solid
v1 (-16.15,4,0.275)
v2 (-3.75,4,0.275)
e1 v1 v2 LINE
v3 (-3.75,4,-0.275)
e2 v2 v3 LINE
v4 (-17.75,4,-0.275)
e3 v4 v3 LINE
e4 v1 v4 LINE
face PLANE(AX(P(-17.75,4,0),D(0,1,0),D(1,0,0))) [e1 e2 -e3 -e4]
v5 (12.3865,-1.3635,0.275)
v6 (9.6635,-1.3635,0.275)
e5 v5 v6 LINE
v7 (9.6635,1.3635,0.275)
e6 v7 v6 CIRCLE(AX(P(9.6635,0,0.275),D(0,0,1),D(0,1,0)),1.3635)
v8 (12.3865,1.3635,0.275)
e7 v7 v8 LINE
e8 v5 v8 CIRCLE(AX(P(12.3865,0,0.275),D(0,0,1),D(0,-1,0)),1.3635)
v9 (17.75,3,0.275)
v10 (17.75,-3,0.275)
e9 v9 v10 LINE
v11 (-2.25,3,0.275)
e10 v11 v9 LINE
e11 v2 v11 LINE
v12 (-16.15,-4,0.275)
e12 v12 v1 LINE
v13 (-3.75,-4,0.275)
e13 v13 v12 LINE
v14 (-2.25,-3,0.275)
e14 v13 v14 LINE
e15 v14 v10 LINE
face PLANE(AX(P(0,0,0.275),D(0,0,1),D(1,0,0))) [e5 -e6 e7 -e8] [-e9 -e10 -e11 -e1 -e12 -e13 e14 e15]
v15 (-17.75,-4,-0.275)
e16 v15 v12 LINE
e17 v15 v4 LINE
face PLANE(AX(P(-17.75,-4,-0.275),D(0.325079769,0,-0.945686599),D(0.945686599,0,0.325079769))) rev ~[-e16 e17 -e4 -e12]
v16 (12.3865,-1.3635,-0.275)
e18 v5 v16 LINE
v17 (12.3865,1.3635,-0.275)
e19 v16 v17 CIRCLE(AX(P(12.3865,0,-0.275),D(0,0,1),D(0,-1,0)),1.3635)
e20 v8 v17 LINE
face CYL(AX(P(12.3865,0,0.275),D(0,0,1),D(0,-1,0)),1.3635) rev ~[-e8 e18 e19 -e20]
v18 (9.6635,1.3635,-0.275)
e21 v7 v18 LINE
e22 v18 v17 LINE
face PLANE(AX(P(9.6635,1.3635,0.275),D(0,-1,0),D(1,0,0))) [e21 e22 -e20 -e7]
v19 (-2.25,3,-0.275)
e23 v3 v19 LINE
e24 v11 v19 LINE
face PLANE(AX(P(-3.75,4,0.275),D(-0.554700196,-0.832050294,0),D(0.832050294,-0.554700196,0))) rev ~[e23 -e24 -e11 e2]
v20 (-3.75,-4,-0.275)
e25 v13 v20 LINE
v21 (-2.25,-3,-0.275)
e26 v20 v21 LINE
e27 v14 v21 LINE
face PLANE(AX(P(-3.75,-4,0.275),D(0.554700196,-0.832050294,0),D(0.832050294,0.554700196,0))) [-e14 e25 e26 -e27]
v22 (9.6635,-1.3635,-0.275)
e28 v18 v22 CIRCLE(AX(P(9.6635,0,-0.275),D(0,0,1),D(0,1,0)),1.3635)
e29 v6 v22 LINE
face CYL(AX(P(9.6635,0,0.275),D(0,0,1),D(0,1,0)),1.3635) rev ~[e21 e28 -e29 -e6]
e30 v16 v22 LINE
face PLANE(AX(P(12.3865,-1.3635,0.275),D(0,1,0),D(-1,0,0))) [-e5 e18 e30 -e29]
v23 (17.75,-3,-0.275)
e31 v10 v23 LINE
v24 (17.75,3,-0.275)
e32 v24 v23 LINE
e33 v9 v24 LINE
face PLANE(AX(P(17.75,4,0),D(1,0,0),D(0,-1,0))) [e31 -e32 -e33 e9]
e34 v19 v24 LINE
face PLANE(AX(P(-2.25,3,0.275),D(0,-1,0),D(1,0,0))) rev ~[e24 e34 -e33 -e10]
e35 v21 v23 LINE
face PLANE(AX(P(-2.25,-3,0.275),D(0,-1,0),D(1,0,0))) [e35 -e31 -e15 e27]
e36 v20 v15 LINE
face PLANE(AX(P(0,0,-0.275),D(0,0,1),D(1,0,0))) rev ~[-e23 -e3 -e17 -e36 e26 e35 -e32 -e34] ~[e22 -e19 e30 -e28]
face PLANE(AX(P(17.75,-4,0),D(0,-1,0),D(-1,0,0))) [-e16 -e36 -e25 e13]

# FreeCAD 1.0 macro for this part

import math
import FreeCAD as App
import Part
import Sketcher
from FreeCAD import Vector
Q = App.Units.Quantity


def add_polygon(sketch, points):
    """Adds a closed chain of lines whose ends are joined by coincident constraints."""
    first, n = sketch.GeometryCount, len(points)
    for a, b in zip(points, points[1:] + points[:1]):
        sketch.addGeometry(Part.LineSegment(App.Vector(*a, 0), App.Vector(*b, 0)), False)
    for i in range(n):
        sketch.addConstraint(Sketcher.Constraint("Coincident", first + i, 2, first + (i + 1) % n, 1))

doc = App.newDocument("Part")
body = doc.addObject("PartDesign::Body", "Body")

# Sketch on XY plane
sketch1 = body.newObject("Sketcher::SketchObject", "Sketch")
sketch1.AttachmentSupport = (doc.getObject("XY_Plane"), [""])
sketch1.MapMode = "FlatFace"
add_polygon(sketch1, [(17.75, 4), (-17.75, 4), (-17.75, -4), (17.75, -4)])  # lines 0-3
sketch1.addConstraint(Sketcher.Constraint("Horizontal", 0))
sketch1.addConstraint(Sketcher.Constraint("Vertical", 1))
sketch1.addConstraint(Sketcher.Constraint("Horizontal", 2))
sketch1.addConstraint(Sketcher.Constraint("Vertical", 3))
sketch1.addConstraint(Sketcher.Constraint("Symmetric", 0, 2, 2, 2, -1, 1))
sketch1.addConstraint(Sketcher.Constraint("DistanceY", 1, 2, 1, 1, Q("8 mm")))
sketch1.addConstraint(Sketcher.Constraint("DistanceX", 0, 2, 0, 1, Q("35.5 mm")))
pad1 = body.newObject("PartDesign::Pad", "Pad")
pad1.Profile = sketch1
pad1.Length = 0.55
pad1.Midplane = True

# Sketch on XY plane
sketch2 = body.newObject("Sketcher::SketchObject", "Sketch001")
sketch2.AttachmentSupport = (doc.getObject("XY_Plane"), [""])
sketch2.MapMode = "FlatFace"
sketch2.AttachmentOffset = App.Placement(Vector(0, 0, 0.275), App.Rotation())
sketch2.addGeometry(Part.LineSegment(Vector(12.3865, 1.3635, 0), Vector(9.6635, 1.3635, 0)), False)
sketch2.addGeometry(Part.ArcOfCircle(Part.Circle(Vector(9.6635, 0, 0), Vector(0, 0, 1), 1.3635), math.radians(90), math.radians(270)), False)
sketch2.addGeometry(Part.LineSegment(Vector(9.6635, -1.3635, 0), Vector(12.3865, -1.3635, 0)), False)
sketch2.addGeometry(Part.ArcOfCircle(Part.Circle(Vector(12.3865, 0, 0), Vector(0, 0, 1), 1.3635), math.radians(-90), math.radians(90)), False)
sketch2.addConstraint(Sketcher.Constraint("Tangent", 0, 2, 1, 1))
sketch2.addConstraint(Sketcher.Constraint("Tangent", 1, 2, 2, 1))
sketch2.addConstraint(Sketcher.Constraint("Tangent", 2, 2, 3, 1))
sketch2.addConstraint(Sketcher.Constraint("Tangent", 3, 2, 0, 1))
sketch2.addConstraint(Sketcher.Constraint("Horizontal", 0))
sketch2.addConstraint(Sketcher.Constraint("Horizontal", 2))
sketch2.addConstraint(Sketcher.Constraint("PointOnObject", 1, 3, -1))
sketch2.addConstraint(Sketcher.Constraint("Radius", 1, Q("1.3635 mm")))
sketch2.addConstraint(Sketcher.Constraint("DistanceX", 0, 2, 0, 1, Q("2.723 mm")))
sketch2.addConstraint(Sketcher.Constraint("DistanceX", -1, 1, 1, 3, Q("9.6635 mm")))
pocket1 = body.newObject("PartDesign::Pocket", "Pocket")
pocket1.Profile = sketch2
pocket1.Length = 0.55

# Sketch on XY plane
sketch3 = body.newObject("Sketcher::SketchObject", "Sketch002")
sketch3.AttachmentSupport = (doc.getObject("XY_Plane"), [""])
sketch3.MapMode = "FlatFace"
sketch3.AttachmentOffset = App.Placement(Vector(0, 0, 0.275), App.Rotation())
add_polygon(sketch3, [(17.75, 4), (-3.75, 4), (-2.25, 3), (17.75, 3)])  # lines 0-3
add_polygon(sketch3, [(-2.25, -3), (-3.75, -4), (17.75, -4), (17.75, -3)])  # lines 4-7
sketch3.addConstraint(Sketcher.Constraint("Horizontal", 0))
sketch3.addConstraint(Sketcher.Constraint("Horizontal", 2))
sketch3.addConstraint(Sketcher.Constraint("Vertical", 3))
sketch3.addConstraint(Sketcher.Constraint("Horizontal", 5))
sketch3.addConstraint(Sketcher.Constraint("Vertical", 6))
sketch3.addConstraint(Sketcher.Constraint("Horizontal", 7))
sketch3.addConstraint(Sketcher.Constraint("Symmetric", 0, 2, 4, 2, -1))
sketch3.addConstraint(Sketcher.Constraint("Symmetric", 2, 2, 6, 2, -1))
sketch3.addConstraint(Sketcher.Constraint("Vertical", 1, 2, 7, 2))
sketch3.addConstraint(Sketcher.Constraint("DistanceX", 2, 1, 2, 2, Q("20 mm")))
sketch3.addConstraint(Sketcher.Constraint("DistanceY", 3, 1, 3, 2, Q("1 mm")))
sketch3.addConstraint(Sketcher.Constraint("DistanceX", 0, 2, 0, 1, Q("21.5 mm")))
sketch3.addConstraint(Sketcher.Constraint("DistanceY", -1, 1, 0, 2, Q("4 mm")))
sketch3.addConstraint(Sketcher.Constraint("DistanceX", 0, 2, -1, 1, Q("3.75 mm")))
pocket2 = body.newObject("PartDesign::Pocket", "Pocket001")
pocket2.Profile = sketch3
pocket2.Length = 0.55

# Sketch on XZ plane
sketch4 = body.newObject("Sketcher::SketchObject", "Sketch003")
sketch4.AttachmentSupport = (doc.getObject("XZ_Plane"), [""])
sketch4.MapMode = "FlatFace"
sketch4.AttachmentOffset = App.Placement(Vector(0, 0, 4), App.Rotation())
add_polygon(sketch4, [(-16.15, 0.275), (-17.75, 0.275), (-17.75, -0.275)])  # lines 0-2
sketch4.addConstraint(Sketcher.Constraint("Horizontal", 0))
sketch4.addConstraint(Sketcher.Constraint("Vertical", 1))
sketch4.addConstraint(Sketcher.Constraint("DistanceX", 0, 2, 0, 1, Q("1.6 mm")))
sketch4.addConstraint(Sketcher.Constraint("DistanceY", 1, 2, 1, 1, Q("0.55 mm")))
sketch4.addConstraint(Sketcher.Constraint("DistanceX", 0, 2, -1, 1, Q("17.75 mm")))
sketch4.addConstraint(Sketcher.Constraint("DistanceY", -1, 1, 0, 2, Q("0.275 mm")))
pocket3 = body.newObject("PartDesign::Pocket", "Pocket002")
pocket3.Profile = sketch4
pocket3.Type = "ThroughAll"

doc.recompute()
